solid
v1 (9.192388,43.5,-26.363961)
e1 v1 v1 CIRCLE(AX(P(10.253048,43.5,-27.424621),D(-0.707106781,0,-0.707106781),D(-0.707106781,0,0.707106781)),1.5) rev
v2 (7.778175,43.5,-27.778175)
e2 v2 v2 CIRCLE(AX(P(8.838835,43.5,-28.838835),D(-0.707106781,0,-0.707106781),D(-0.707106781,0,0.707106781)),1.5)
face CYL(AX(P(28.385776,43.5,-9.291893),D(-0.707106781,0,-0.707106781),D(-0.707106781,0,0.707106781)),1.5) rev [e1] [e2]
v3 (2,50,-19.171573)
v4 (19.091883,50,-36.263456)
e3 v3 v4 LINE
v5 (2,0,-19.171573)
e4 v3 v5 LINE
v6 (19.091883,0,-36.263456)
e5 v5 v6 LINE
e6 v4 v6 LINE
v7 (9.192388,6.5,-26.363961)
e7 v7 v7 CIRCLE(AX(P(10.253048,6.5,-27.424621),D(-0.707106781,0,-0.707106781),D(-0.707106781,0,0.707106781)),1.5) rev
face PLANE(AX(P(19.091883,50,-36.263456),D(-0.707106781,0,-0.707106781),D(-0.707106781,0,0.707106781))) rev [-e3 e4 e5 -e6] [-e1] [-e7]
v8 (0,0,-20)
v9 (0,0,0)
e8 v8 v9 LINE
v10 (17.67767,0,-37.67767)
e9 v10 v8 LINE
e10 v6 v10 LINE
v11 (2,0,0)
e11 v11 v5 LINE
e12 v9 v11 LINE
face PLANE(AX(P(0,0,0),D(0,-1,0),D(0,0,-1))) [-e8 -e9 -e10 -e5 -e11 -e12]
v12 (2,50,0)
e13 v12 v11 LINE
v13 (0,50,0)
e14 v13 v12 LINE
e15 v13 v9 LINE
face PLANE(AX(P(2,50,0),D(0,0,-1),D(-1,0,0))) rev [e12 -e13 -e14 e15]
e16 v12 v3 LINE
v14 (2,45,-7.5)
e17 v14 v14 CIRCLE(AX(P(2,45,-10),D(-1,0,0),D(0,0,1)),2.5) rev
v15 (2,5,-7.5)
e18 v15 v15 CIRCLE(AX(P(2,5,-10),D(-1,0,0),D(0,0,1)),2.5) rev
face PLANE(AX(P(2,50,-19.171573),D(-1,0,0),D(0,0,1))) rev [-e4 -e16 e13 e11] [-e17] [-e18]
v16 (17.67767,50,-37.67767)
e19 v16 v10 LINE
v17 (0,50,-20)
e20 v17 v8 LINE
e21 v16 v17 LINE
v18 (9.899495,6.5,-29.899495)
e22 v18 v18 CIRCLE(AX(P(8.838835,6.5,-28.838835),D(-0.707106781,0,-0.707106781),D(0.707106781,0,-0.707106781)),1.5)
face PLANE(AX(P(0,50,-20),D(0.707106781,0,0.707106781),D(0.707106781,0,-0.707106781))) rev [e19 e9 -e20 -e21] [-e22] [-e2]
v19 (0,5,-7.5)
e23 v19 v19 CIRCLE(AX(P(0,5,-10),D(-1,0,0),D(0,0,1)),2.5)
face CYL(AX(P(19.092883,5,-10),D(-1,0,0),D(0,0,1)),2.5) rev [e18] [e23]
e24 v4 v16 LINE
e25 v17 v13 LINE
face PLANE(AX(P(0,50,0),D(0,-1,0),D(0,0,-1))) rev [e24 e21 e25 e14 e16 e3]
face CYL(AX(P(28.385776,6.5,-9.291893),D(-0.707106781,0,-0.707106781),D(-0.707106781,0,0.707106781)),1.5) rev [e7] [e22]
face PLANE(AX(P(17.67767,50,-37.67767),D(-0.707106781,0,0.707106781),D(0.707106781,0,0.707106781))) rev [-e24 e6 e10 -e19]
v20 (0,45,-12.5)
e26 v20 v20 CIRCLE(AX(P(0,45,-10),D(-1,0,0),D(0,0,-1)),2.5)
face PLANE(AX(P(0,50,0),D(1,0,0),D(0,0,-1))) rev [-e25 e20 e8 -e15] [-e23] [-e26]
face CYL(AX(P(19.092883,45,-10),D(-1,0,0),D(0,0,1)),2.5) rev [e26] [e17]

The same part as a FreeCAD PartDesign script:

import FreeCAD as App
import Part
import Sketcher
Q = App.Units.Quantity

doc = App.newDocument("Part")
body = doc.addObject("PartDesign::Body", "Body")

# Sketch on XZ plane
sketch1 = body.newObject("Sketcher::SketchObject", "Sketch")
sketch1.AttachmentSupport = (doc.getObject("XZ_Plane"), [""])
sketch1.MapMode = "FlatFace"
sketch1.addGeometry([
    Part.LineSegment(App.Vector(0, -20, 0), App.Vector(0, 0, 0)),  # 0
    Part.LineSegment(App.Vector(0, 0, 0), App.Vector(2, 0, 0)),  # 1
    Part.LineSegment(App.Vector(2, 0, 0), App.Vector(2, -19.2, 0)),  # 2
    Part.LineSegment(App.Vector(2, -19.2, 0), App.Vector(19.1, -36.3, 0)),  # 3
    Part.LineSegment(App.Vector(19.1, -36.3, 0), App.Vector(17.7, -37.7, 0)),  # 4
    Part.LineSegment(App.Vector(17.7, -37.7, 0), App.Vector(0, -20, 0)),  # 5
], False)
sketch1.addConstraint([
    Sketcher.Constraint("Coincident", 0, 2, 1, 1),
    Sketcher.Constraint("Coincident", 1, 2, 2, 1),
    Sketcher.Constraint("Coincident", 2, 2, 3, 1),
    Sketcher.Constraint("Coincident", 3, 2, 4, 1),
    Sketcher.Constraint("Coincident", 4, 2, 5, 1),
    Sketcher.Constraint("Coincident", 5, 2, 0, 1),
    Sketcher.Constraint("Vertical", 0),
    Sketcher.Constraint("Horizontal", 1),
    Sketcher.Constraint("Vertical", 2),
    Sketcher.Constraint("Coincident", 0, 2, -1, 1),
    Sketcher.Constraint("Perpendicular", 3, 4),
    Sketcher.Constraint("Perpendicular", 4, 5),
    Sketcher.Constraint("DistanceX", 1, 1, 1, 2, 2.0),
    Sketcher.Constraint("DistanceY", 0, 1, 0, 2, 20.0),
    Sketcher.Constraint("Angle", 3, Q("-45 deg")),
    Sketcher.Constraint("Distance", 4, 2.0),
    Sketcher.Constraint("Distance", 5, 25.0),
])
pad1 = body.newObject("PartDesign::Pad", "Pad")
pad1.Profile = sketch1
pad1.Length = 50
pad1.Reversed = True

# Sketch on YZ plane
sketch2 = body.newObject("Sketcher::SketchObject", "Sketch001")
sketch2.AttachmentSupport = (doc.getObject("YZ_Plane"), [""])
sketch2.MapMode = "FlatFace"
sketch2.addGeometry(Part.Circle(App.Vector(5, -10, 0), App.Vector(0, 0, 1), 2.5), False)
sketch2.addConstraint([
    Sketcher.Constraint("Diameter", 0, 5.0),
    Sketcher.Constraint("DistanceX", -1, 1, 0, 3, 5.0),
    Sketcher.Constraint("DistanceY", 0, 3, -1, 1, 10.0),
])
pocket1 = body.newObject("PartDesign::Pocket", "Pocket")
pocket1.Profile = sketch2
pocket1.Type = "UpToFirst"
pocket1.Reversed = True

# Sketch on YZ plane
sketch3 = body.newObject("Sketcher::SketchObject", "Sketch002")
sketch3.AttachmentSupport = (doc.getObject("YZ_Plane"), [""])
sketch3.MapMode = "FlatFace"
sketch3.addGeometry(Part.Circle(App.Vector(45, -10, 0), App.Vector(0, 0, 1), 2.5), False)
sketch3.addConstraint([
    Sketcher.Constraint("Diameter", 0, 5.0),
    Sketcher.Constraint("DistanceX", -1, 1, 0, 3, 45.0),
    Sketcher.Constraint("DistanceY", 0, 3, -1, 1, 10.0),
])
pocket2 = body.newObject("PartDesign::Pocket", "Pocket001")
pocket2.Profile = sketch3
pocket2.Type = "UpToFirst"
pocket2.Reversed = True

# Sketch on an angled plane
sketch4 = body.newObject("Sketcher::SketchObject", "Sketch003")
sketch4.Placement = App.Placement(App.Vector(-10, 0, -10), App.Rotation(App.Vector(-0.707106781, 0, 0.707106781), App.Vector(0, 0.999999999, 0), App.Vector(-0.707106781, 0, -0.707106781), "ZXY"))
sketch4.addGeometry(Part.Circle(App.Vector(-26.6, 43.5, 0), App.Vector(0, 0, 1), 1.5), False)
sketch4.addConstraint([
    Sketcher.Constraint("Diameter", 0, 3.0),
    Sketcher.Constraint("DistanceY", -1, 1, 0, 3, 43.5),
    Sketcher.Constraint("DistanceX", 0, 3, -1, 1, 26.642136),
])
pocket3 = body.newObject("PartDesign::Pocket", "Pocket002")
pocket3.Profile = sketch4
pocket3.Type = "UpToFirst"

# Sketch on an angled plane
sketch5 = body.newObject("Sketcher::SketchObject", "Sketch004")
sketch5.Placement = App.Placement(App.Vector(-10, 0, -10), App.Rotation(App.Vector(-0.707106781, 0, 0.707106781), App.Vector(0, 0.999999999, 0), App.Vector(-0.707106781, 0, -0.707106781), "ZXY"))
sketch5.addGeometry(Part.Circle(App.Vector(-26.6, 6.5, 0), App.Vector(0, 0, 1), 1.5), False)
sketch5.addConstraint([
    Sketcher.Constraint("Diameter", 0, 3.0),
    Sketcher.Constraint("DistanceY", -1, 1, 0, 3, 6.5),
    Sketcher.Constraint("DistanceX", 0, 3, -1, 1, 26.642136),
])
pocket4 = body.newObject("PartDesign::Pocket", "Pocket003")
pocket4.Profile = sketch5
pocket4.Type = "UpToFirst"

doc.recompute()
